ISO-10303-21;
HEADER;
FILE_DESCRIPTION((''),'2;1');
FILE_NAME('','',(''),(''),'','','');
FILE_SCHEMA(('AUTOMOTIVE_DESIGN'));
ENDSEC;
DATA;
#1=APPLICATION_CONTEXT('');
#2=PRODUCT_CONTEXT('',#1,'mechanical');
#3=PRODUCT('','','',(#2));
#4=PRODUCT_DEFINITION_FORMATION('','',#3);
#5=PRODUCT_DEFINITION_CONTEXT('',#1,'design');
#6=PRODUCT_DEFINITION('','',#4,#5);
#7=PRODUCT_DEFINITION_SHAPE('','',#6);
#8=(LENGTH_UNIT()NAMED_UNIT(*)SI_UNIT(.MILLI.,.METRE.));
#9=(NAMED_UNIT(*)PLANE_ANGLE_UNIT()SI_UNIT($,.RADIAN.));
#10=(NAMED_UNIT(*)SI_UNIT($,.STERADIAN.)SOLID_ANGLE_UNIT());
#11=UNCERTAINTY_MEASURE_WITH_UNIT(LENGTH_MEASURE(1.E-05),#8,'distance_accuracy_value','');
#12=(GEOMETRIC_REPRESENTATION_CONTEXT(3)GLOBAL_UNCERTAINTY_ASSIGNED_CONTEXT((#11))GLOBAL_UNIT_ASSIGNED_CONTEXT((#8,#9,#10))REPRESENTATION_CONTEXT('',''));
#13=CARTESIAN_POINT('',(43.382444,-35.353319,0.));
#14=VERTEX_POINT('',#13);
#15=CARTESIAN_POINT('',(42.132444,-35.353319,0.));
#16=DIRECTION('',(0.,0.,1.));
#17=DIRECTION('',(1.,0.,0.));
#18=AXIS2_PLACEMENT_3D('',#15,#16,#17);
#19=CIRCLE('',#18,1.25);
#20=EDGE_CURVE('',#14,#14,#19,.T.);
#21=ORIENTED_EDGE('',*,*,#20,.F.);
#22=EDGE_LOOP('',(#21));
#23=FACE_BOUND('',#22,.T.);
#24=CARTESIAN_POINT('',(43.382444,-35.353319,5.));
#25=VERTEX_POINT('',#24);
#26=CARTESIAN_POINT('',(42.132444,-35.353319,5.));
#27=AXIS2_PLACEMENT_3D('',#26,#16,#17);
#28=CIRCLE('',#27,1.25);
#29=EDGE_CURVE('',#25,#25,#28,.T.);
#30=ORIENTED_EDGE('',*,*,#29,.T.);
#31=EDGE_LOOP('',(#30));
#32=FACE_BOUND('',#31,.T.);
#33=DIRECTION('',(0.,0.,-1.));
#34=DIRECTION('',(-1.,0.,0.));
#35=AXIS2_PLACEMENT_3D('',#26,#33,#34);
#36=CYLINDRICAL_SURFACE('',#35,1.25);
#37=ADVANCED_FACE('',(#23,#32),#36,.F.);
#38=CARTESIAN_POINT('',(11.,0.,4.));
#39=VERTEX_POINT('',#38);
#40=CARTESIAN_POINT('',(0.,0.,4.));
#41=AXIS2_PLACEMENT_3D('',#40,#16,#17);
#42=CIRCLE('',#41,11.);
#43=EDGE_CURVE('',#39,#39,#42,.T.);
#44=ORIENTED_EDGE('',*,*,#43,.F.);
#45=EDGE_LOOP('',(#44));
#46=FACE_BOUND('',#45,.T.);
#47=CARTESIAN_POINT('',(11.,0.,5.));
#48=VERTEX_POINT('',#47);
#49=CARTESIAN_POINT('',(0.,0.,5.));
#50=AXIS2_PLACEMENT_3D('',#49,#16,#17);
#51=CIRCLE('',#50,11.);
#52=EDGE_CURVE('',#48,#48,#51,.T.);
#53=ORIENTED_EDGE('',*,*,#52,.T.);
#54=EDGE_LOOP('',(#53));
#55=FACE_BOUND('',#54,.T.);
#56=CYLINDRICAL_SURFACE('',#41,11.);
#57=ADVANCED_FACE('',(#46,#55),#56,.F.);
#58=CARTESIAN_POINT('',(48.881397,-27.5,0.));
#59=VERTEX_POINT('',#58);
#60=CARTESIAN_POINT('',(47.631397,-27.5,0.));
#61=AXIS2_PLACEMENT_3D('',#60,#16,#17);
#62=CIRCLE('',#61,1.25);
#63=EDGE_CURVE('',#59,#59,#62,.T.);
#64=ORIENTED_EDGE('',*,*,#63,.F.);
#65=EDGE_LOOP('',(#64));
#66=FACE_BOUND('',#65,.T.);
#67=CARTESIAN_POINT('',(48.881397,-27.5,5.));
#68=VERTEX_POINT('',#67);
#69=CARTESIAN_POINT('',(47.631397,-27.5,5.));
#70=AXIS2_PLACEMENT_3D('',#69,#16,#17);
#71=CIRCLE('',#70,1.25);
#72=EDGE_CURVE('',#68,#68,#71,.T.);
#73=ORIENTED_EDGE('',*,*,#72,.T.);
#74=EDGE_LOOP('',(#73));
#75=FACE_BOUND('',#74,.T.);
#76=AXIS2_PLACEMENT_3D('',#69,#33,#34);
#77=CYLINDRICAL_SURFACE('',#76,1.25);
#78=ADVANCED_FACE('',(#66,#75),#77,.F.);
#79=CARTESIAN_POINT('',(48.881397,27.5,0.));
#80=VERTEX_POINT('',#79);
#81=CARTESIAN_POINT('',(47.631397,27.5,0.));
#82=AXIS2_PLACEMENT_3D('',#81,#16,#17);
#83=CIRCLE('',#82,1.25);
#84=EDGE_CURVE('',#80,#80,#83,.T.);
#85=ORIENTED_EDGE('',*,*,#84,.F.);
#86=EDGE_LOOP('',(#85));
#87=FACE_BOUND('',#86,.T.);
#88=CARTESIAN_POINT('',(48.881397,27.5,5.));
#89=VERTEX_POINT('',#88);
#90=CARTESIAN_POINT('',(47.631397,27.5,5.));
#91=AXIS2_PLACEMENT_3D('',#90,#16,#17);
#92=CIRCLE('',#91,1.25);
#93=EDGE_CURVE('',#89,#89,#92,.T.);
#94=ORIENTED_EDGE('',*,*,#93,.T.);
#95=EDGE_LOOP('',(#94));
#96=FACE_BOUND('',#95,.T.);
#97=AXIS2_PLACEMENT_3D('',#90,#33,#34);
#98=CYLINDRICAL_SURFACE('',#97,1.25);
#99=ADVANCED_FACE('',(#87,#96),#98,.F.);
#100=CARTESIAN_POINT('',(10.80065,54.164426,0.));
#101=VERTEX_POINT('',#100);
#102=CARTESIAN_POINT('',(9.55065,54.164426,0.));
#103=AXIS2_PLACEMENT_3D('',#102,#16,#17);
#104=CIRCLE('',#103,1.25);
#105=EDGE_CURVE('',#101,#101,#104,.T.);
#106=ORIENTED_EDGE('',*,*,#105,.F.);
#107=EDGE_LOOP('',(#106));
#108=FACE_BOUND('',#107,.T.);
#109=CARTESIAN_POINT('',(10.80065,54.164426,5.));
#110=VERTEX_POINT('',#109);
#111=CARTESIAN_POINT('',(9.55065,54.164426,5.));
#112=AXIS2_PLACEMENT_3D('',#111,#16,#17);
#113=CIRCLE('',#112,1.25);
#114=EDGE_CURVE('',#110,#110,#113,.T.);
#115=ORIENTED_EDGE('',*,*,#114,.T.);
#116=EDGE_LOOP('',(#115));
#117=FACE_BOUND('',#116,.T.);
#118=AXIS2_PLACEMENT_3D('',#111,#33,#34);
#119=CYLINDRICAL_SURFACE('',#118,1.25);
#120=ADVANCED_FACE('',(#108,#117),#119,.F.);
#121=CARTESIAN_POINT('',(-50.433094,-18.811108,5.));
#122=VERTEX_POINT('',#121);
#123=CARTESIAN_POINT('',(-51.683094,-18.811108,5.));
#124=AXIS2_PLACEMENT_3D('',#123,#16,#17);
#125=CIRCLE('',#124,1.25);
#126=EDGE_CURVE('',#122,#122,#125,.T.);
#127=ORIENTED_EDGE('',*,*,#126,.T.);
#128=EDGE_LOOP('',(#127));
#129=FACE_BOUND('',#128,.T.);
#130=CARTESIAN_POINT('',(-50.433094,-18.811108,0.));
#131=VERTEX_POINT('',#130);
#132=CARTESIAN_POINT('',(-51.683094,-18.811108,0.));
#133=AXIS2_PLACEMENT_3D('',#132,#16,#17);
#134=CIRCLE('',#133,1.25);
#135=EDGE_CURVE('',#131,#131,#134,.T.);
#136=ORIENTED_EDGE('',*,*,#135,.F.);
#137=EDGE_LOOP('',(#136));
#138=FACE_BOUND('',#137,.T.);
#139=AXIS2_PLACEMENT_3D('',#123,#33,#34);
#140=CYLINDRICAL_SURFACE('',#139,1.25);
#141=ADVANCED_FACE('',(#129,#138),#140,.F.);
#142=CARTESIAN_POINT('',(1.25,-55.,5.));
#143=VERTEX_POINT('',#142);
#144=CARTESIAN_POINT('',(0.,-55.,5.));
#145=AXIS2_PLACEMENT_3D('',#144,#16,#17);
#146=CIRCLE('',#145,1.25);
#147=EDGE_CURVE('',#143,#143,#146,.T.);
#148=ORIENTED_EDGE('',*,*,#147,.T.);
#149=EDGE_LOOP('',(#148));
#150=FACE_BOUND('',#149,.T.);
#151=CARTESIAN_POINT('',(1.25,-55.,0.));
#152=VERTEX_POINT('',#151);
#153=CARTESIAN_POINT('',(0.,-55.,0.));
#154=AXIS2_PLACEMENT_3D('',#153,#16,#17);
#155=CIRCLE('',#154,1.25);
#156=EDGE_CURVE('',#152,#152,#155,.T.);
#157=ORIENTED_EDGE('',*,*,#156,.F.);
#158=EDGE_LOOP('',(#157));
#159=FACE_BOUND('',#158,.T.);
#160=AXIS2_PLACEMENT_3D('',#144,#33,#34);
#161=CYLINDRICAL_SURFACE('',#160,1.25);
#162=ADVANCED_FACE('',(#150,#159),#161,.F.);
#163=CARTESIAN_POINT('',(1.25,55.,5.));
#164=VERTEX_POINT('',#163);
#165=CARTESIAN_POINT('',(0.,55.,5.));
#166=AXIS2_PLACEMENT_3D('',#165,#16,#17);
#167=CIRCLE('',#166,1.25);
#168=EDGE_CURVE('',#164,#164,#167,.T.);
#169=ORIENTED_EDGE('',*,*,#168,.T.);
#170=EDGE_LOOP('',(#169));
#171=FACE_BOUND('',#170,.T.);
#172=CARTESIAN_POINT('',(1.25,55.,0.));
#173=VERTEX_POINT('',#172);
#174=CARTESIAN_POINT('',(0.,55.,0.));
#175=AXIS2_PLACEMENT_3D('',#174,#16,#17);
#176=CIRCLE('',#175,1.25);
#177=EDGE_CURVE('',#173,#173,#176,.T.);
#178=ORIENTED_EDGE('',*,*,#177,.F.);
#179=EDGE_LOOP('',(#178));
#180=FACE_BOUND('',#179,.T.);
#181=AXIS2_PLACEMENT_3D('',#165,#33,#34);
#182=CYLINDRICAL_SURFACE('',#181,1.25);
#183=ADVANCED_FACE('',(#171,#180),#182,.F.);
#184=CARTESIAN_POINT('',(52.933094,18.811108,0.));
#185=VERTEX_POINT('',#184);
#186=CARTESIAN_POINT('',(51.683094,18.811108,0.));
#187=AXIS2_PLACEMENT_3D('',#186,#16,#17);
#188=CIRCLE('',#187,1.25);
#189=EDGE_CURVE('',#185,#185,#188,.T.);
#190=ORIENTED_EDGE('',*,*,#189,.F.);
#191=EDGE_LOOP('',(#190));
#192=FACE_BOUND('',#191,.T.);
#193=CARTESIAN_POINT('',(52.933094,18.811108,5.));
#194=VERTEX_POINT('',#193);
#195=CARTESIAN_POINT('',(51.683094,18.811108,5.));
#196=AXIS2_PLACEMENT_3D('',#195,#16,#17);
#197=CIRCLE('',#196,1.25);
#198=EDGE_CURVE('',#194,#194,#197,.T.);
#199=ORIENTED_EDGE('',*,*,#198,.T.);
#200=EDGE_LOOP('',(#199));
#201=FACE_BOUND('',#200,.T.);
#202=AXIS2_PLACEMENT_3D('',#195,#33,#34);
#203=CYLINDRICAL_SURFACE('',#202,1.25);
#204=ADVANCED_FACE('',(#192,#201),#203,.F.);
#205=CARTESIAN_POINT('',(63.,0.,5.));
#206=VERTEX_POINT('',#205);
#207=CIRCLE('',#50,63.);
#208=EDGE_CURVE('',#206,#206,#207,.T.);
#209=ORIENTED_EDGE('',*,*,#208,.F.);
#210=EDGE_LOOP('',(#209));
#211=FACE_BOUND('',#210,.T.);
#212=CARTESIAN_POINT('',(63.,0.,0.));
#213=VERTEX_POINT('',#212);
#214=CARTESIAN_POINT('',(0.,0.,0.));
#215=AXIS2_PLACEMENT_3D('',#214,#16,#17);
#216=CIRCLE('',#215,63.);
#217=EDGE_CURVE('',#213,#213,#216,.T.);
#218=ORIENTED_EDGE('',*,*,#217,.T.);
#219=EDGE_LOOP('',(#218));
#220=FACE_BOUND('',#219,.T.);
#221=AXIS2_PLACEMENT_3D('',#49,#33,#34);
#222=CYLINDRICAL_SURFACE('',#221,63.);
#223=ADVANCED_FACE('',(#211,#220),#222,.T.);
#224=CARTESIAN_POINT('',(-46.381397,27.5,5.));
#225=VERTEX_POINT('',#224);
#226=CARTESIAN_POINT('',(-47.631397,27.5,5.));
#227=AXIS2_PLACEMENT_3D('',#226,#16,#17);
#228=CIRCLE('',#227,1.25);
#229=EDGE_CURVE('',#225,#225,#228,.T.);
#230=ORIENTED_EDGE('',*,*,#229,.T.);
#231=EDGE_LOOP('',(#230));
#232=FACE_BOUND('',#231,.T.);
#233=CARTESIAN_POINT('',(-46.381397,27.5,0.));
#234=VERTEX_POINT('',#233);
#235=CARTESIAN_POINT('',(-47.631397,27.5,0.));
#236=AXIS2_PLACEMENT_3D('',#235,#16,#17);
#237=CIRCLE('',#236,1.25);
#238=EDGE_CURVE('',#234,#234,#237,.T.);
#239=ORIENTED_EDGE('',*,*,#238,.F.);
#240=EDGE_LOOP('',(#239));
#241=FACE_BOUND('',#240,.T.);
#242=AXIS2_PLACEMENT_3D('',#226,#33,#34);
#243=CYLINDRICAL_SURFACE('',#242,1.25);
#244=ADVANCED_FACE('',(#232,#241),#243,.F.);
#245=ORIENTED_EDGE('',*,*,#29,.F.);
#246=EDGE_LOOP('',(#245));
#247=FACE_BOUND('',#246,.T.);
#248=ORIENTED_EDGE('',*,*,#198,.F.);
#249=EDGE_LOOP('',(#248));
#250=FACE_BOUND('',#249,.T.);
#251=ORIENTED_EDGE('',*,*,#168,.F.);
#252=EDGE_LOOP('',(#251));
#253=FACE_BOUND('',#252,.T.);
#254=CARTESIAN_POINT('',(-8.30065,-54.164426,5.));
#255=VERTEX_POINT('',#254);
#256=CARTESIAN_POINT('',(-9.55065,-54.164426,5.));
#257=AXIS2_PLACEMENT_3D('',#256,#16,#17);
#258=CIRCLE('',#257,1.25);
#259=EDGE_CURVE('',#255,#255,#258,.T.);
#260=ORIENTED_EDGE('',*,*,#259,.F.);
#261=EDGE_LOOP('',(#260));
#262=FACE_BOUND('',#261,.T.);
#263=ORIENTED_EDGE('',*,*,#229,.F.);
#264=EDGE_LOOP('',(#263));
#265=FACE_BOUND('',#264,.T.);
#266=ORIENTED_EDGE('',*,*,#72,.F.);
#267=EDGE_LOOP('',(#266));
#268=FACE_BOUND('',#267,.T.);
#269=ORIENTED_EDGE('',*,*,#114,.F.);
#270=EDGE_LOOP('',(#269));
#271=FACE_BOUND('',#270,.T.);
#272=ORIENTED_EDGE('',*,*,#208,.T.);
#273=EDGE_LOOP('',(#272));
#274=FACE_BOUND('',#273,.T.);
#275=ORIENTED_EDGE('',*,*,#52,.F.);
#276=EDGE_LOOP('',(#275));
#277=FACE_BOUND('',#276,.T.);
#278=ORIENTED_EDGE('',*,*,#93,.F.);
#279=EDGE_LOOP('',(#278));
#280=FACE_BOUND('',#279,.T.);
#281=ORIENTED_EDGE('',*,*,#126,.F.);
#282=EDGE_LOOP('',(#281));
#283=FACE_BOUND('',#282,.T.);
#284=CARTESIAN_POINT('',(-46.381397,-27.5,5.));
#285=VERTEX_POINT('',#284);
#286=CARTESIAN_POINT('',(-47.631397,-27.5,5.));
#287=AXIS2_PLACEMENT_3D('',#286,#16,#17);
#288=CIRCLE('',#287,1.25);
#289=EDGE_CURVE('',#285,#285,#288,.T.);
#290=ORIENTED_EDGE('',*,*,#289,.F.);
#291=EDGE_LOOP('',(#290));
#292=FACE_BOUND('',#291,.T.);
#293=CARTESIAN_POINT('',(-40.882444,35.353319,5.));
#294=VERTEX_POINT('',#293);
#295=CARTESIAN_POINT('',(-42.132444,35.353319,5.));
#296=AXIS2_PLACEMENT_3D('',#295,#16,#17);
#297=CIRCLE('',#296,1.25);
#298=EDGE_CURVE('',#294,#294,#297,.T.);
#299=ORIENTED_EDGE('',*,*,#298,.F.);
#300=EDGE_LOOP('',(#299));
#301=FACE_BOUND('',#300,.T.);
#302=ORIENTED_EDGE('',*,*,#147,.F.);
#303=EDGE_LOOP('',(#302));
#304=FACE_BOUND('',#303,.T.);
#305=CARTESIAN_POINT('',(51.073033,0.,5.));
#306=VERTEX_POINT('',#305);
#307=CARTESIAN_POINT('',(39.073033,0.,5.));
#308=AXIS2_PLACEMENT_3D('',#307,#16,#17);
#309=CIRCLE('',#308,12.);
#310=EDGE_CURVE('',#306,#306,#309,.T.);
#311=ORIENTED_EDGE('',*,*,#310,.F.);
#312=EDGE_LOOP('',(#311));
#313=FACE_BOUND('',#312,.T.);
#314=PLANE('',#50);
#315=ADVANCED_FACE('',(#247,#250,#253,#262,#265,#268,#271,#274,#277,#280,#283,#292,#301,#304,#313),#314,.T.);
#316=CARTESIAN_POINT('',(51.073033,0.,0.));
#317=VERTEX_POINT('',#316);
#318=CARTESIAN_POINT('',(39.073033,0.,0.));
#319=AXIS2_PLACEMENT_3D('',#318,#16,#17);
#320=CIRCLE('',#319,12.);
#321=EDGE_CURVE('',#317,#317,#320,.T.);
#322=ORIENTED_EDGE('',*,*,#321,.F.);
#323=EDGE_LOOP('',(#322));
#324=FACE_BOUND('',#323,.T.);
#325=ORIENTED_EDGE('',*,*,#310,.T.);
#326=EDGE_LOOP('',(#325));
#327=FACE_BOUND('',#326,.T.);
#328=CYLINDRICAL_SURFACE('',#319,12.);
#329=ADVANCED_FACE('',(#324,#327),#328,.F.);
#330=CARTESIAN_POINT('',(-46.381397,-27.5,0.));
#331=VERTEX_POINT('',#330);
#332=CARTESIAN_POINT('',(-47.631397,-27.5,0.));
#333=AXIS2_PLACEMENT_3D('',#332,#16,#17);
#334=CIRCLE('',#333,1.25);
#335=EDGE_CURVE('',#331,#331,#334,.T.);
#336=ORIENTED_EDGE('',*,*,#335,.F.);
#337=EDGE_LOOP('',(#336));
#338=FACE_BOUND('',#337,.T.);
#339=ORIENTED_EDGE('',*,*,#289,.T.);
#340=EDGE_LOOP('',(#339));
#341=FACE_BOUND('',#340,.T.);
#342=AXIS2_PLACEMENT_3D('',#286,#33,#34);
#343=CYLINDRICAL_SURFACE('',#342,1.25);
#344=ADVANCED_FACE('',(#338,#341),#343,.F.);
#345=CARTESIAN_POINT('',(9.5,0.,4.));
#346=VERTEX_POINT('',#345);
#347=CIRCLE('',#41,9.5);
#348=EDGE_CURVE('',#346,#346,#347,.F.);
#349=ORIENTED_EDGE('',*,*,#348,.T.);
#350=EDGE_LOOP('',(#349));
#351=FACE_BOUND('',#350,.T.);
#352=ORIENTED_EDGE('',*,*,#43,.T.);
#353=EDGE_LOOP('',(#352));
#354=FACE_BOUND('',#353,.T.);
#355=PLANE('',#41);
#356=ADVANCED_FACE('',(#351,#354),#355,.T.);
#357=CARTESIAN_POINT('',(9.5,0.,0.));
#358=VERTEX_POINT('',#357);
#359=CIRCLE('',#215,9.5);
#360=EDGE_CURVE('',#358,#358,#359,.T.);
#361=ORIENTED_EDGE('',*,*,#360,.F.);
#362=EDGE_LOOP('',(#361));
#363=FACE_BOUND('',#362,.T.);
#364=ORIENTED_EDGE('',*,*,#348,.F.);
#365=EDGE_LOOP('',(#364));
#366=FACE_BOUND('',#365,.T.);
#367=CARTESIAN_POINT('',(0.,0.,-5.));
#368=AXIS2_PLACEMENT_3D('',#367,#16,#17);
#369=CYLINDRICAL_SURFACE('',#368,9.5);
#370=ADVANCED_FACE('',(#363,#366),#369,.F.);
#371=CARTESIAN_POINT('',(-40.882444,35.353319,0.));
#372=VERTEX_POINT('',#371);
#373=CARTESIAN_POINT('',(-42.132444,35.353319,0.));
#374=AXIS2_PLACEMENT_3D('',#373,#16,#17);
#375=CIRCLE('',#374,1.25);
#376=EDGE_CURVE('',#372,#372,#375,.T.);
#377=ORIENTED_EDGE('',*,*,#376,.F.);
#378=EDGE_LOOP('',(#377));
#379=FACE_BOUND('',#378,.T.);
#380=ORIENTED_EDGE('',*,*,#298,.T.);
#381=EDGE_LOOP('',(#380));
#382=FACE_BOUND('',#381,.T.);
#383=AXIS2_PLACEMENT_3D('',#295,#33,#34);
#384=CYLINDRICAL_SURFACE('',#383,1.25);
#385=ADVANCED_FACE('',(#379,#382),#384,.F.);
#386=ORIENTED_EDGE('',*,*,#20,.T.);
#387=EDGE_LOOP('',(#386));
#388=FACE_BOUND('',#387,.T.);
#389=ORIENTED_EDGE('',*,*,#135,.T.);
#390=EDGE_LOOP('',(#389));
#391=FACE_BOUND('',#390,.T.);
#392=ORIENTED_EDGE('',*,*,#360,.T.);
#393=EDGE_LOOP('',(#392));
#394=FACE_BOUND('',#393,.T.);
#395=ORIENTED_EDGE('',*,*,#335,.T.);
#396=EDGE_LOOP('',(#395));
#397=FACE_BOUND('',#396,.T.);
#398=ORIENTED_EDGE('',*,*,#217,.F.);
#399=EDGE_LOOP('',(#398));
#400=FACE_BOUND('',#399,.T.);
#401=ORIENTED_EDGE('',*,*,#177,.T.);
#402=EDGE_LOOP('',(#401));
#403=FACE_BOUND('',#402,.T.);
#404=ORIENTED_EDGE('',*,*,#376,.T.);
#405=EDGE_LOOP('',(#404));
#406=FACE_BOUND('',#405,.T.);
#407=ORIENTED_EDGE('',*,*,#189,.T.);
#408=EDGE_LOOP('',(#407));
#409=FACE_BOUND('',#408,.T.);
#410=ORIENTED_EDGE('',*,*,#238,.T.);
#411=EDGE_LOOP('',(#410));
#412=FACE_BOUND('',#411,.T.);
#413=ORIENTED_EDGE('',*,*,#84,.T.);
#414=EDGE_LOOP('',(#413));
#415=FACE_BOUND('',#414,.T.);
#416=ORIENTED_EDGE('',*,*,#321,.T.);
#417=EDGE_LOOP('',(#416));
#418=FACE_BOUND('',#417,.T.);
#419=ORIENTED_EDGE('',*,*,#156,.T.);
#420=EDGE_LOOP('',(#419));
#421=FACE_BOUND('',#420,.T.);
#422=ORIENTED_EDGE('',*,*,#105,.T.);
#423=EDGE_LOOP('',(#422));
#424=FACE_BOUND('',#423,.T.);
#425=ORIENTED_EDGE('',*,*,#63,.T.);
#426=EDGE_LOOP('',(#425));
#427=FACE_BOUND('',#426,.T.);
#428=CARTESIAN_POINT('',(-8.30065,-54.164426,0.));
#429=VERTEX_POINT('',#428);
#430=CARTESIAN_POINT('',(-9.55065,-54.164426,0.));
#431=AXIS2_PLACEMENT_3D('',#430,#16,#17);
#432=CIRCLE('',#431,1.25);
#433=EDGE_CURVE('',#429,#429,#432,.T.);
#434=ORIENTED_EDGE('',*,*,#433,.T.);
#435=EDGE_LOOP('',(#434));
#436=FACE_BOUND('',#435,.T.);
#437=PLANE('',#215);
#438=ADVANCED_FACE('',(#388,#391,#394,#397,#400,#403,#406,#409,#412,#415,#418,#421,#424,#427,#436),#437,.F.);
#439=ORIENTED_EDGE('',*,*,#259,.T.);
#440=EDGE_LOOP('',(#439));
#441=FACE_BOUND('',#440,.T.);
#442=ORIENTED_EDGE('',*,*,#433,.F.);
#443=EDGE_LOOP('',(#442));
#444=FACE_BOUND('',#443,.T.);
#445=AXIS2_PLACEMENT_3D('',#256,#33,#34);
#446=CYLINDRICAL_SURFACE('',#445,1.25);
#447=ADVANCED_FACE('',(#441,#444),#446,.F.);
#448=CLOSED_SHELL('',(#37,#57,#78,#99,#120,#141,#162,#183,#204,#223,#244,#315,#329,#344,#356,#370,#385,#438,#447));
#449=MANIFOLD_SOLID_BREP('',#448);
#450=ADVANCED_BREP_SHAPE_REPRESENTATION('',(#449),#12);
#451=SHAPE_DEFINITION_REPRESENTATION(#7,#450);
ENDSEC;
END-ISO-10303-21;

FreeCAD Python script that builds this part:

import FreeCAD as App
import Part
import Sketcher
from FreeCAD import Vector
Q = App.Units.Quantity

doc = App.newDocument("Part")
body = doc.addObject("PartDesign::Body", "Body")

# Sketch on XY plane
sketch1 = body.newObject("Sketcher::SketchObject", "Sketch")
sketch1.AttachmentSupport = (doc.getObject("XY_Plane"), [""])
sketch1.MapMode = "FlatFace"
sketch1.addGeometry([
    Part.Circle(Vector(0, 0, 0), Vector(0, 0, 1), 63),  # 0
    Part.Circle(Vector(-9.6, -54.2, 0), Vector(0, 0, 1), 1.2),  # 1
    Part.Circle(Vector(-47.6, -27.5, 0), Vector(0, 0, 1), 1.2),  # 2
    Part.Circle(Vector(-51.7, -18.8, 0), Vector(0, 0, 1), 1.2),  # 3
    Part.Circle(Vector(0, -55, 0), Vector(0, 0, 1), 1.2),  # 4
    Part.Circle(Vector(42.1, -35.4, 0), Vector(0, 0, 1), 1.2),  # 5
    Part.Circle(Vector(47.6, -27.5, 0), Vector(0, 0, 1), 1.2),  # 6
    Part.Circle(Vector(-47.6, 27.5, 0), Vector(0, 0, 1), 1.2),  # 7
    Part.Circle(Vector(-42.1, 35.4, 0), Vector(0, 0, 1), 1.2),  # 8
    Part.Circle(Vector(51.7, 18.8, 0), Vector(0, 0, 1), 1.2),  # 9
    Part.Circle(Vector(47.6, 27.5, 0), Vector(0, 0, 1), 1.2),  # 10
    Part.Circle(Vector(0, 55, 0), Vector(0, 0, 1), 1.2),  # 11
    Part.Circle(Vector(9.6, 54.2, 0), Vector(0, 0, 1), 1.2),  # 12
], False)
sketch1.addConstraint([
    Sketcher.Constraint("Coincident", 0, 3, -1, 1),
    Sketcher.Constraint("Equal", 1, 2),
    Sketcher.Constraint("Equal", 2, 3),
    Sketcher.Constraint("Equal", 3, 4),
    Sketcher.Constraint("Equal", 4, 5),
    Sketcher.Constraint("Equal", 5, 6),
    Sketcher.Constraint("Equal", 6, 7),
    Sketcher.Constraint("Equal", 7, 8),
    Sketcher.Constraint("Equal", 8, 9),
    Sketcher.Constraint("Equal", 9, 10),
    Sketcher.Constraint("Equal", 10, 11),
    Sketcher.Constraint("Equal", 11, 12),
    Sketcher.Constraint("Symmetric", 6, 3, 7, 3, -1, 1),
    Sketcher.Constraint("Symmetric", 5, 3, 8, 3, -1, 1),
    Sketcher.Constraint("Symmetric", 3, 3, 9, 3, -1, 1),
    Sketcher.Constraint("Symmetric", 2, 3, 10, 3, -1, 1),
    Sketcher.Constraint("Symmetric", 4, 3, 11, 3, -1, 1),
    Sketcher.Constraint("Symmetric", 1, 3, 12, 3, -1, 1),
    Sketcher.Constraint("Symmetric", 2, 3, 6, 3, -2),
    Sketcher.Constraint("PointOnObject", 4, 3, -2),
    Sketcher.Constraint("Diameter", 0, Q("126 mm")),
    Sketcher.Constraint("Diameter", 1, Q("2.5 mm")),
    Sketcher.Constraint("DistanceY", 4, 3, -1, 1, Q("55 mm")),
    Sketcher.Constraint("DistanceY", 2, 3, 7, 3, Q("55 mm")),
    Sketcher.Constraint("DistanceX", 1, 3, -1, 1, Q("9.55065 mm")),
    Sketcher.Constraint("DistanceY", 5, 3, -1, 1, Q("35.353319 mm")),
    Sketcher.Constraint("DistanceY", 1, 3, 3, 3, Q("35.353319 mm")),
    Sketcher.Constraint("DistanceX", 2, 3, 5, 3, Q("89.763842 mm")),
    Sketcher.Constraint("DistanceX", 3, 3, 5, 3, Q("93.815539 mm")),
    Sketcher.Constraint("DistanceY", 5, 3, 3, 3, Q("16.542211 mm")),
    Sketcher.Constraint("DistanceX", 3, 3, 8, 3, Q("9.55065 mm")),
])
pad1 = body.newObject("PartDesign::Pad", "Pad")
pad1.Profile = sketch1
pad1.Length = 5

# Sketch on XY plane
sketch2 = body.newObject("Sketcher::SketchObject", "Sketch001")
sketch2.AttachmentSupport = (doc.getObject("XY_Plane"), [""])
sketch2.MapMode = "FlatFace"
sketch2.AttachmentOffset = App.Placement(Vector(0, 0, 5), App.Rotation())
sketch2.addGeometry(Part.Circle(Vector(39, 0, 0), Vector(0, 0, 1), 12), False)
sketch2.addConstraint([
    Sketcher.Constraint("PointOnObject", 0, 3, -1),
    Sketcher.Constraint("Diameter", 0, Q("24 mm")),
    Sketcher.Constraint("DistanceX", -1, 1, 0, 3, Q("39.073033 mm")),
])
pocket1 = body.newObject("PartDesign::Pocket", "Pocket")
pocket1.Profile = sketch2
pocket1.Length = 5

# Sketch on XY plane
sketch3 = body.newObject("Sketcher::SketchObject", "Sketch002")
sketch3.AttachmentSupport = (doc.getObject("XY_Plane"), [""])
sketch3.MapMode = "FlatFace"
sketch3.AttachmentOffset = App.Placement(Vector(0, 0, 5), App.Rotation())
sketch3.addGeometry(Part.Circle(Vector(0, 0, 0), Vector(0, 0, 1), 10), False)
sketch3.addConstraint([
    Sketcher.Constraint("Coincident", 0, 3, -1, 1),
    Sketcher.Constraint("Diameter", 0, Q("19 mm")),
])
pocket2 = body.newObject("PartDesign::Pocket", "Pocket001")
pocket2.Profile = sketch3
pocket2.Length = 10

# Sketch on XY plane
sketch4 = body.newObject("Sketcher::SketchObject", "Sketch003")
sketch4.AttachmentSupport = (doc.getObject("XY_Plane"), [""])
sketch4.MapMode = "FlatFace"
sketch4.AttachmentOffset = App.Placement(Vector(0, 0, 5), App.Rotation())
sketch4.addGeometry(Part.Circle(Vector(0, 0, 0), Vector(0, 0, 1), 11), False)
sketch4.addConstraint([
    Sketcher.Constraint("Coincident", 0, 3, -1, 1),
    Sketcher.Constraint("Diameter", 0, Q("22 mm")),
])
pocket3 = body.newObject("PartDesign::Pocket", "Pocket002")
pocket3.Profile = sketch4
pocket3.Length = 1

doc.recompute()
